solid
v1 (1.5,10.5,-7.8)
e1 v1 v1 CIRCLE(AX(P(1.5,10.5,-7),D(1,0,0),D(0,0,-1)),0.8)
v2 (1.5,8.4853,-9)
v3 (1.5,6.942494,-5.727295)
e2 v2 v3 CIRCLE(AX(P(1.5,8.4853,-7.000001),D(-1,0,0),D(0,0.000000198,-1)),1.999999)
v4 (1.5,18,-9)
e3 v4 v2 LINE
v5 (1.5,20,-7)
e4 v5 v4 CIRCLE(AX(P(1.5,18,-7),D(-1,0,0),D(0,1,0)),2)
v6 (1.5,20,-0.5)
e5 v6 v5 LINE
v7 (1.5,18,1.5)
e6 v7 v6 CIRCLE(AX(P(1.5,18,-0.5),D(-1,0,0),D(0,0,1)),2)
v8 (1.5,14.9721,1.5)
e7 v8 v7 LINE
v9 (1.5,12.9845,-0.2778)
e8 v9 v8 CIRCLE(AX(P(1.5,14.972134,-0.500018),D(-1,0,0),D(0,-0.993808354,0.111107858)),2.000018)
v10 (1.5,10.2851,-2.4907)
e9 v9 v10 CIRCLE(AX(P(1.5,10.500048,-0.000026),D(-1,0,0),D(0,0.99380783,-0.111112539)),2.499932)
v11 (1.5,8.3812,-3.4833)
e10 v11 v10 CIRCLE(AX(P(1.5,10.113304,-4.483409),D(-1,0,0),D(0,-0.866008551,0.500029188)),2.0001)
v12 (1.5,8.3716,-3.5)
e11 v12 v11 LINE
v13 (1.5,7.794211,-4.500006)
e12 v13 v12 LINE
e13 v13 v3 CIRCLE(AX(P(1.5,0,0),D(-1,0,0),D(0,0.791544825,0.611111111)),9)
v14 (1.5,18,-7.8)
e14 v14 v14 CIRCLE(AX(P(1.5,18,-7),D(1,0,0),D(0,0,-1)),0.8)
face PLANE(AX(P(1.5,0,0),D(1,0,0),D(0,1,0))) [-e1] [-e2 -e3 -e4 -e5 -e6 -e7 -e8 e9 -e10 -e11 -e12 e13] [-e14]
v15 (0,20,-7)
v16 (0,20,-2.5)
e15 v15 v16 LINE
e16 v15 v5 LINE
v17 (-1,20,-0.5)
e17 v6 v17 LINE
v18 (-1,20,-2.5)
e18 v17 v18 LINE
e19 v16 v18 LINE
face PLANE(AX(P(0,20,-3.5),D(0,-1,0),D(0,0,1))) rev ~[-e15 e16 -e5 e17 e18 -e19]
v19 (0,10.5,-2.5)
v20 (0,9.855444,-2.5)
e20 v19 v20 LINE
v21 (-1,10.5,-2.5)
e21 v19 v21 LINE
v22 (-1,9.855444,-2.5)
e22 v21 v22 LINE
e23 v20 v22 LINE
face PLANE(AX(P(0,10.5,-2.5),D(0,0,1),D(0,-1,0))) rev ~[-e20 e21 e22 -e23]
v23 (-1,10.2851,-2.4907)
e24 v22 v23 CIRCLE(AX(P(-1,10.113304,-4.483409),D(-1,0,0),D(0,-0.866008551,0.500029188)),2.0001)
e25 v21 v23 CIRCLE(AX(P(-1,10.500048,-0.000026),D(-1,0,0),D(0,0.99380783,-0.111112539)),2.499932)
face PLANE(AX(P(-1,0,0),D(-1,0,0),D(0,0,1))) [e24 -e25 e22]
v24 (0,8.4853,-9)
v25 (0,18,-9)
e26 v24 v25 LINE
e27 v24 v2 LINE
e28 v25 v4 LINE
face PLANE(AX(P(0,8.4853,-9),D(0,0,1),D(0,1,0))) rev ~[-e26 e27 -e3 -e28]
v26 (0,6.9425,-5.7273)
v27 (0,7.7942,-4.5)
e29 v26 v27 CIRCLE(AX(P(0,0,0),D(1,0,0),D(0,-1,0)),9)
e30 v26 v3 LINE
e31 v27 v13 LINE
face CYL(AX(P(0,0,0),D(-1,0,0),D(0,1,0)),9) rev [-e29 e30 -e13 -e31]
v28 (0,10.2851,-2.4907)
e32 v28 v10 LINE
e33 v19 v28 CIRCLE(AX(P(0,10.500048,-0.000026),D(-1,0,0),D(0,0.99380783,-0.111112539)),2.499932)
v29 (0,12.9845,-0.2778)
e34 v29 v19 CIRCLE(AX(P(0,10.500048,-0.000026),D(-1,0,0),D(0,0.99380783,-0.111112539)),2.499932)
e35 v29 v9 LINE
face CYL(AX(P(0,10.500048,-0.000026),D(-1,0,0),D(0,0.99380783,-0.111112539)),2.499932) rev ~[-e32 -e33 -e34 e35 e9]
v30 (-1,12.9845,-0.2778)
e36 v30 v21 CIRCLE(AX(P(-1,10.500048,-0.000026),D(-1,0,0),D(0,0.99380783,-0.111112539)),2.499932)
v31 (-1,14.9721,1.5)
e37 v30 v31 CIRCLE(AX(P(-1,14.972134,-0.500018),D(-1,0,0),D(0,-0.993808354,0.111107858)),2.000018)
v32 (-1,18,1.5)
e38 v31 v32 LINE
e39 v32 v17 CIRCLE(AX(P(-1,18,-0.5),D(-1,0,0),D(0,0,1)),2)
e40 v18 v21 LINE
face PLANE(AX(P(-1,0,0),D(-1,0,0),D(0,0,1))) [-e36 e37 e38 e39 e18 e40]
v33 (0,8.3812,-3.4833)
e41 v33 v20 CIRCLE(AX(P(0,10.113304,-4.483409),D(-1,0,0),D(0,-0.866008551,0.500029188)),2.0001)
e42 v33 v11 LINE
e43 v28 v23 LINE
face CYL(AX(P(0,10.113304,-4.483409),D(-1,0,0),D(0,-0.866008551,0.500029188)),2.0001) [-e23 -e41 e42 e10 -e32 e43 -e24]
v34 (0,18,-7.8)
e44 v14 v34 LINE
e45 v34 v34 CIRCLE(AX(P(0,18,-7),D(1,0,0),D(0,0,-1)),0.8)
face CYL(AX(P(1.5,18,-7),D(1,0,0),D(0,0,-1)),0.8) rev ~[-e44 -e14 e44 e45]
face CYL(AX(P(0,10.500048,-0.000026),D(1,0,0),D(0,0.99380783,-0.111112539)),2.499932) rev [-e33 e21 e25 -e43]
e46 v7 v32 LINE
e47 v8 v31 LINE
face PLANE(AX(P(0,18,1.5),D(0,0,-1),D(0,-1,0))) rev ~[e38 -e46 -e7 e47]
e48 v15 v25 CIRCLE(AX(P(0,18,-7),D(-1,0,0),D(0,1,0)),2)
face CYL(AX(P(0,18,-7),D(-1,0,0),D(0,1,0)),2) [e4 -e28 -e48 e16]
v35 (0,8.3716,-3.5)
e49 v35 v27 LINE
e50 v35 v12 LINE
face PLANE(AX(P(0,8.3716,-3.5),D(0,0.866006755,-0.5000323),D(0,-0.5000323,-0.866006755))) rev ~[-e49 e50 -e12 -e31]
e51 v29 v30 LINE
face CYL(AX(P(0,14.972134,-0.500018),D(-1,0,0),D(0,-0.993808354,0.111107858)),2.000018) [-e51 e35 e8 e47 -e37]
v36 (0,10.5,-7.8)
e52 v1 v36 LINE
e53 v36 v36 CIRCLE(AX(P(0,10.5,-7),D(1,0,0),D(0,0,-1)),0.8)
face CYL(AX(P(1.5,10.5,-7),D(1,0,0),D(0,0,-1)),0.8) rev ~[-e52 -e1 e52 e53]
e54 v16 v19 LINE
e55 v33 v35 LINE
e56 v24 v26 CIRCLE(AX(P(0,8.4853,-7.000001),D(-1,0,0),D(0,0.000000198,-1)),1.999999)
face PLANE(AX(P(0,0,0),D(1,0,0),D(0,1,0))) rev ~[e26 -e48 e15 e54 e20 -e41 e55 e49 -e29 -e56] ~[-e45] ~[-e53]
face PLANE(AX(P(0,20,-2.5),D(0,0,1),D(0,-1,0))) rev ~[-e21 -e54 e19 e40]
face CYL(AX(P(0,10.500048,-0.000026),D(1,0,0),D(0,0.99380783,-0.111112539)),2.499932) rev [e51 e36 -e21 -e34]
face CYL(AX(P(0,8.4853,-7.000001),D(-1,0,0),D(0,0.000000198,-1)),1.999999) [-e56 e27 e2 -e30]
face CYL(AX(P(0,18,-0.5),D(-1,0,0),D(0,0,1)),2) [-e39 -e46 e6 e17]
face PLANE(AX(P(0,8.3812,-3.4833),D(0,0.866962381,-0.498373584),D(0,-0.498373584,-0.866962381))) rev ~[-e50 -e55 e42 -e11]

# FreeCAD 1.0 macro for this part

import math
import FreeCAD as App
import Part
import Sketcher
from FreeCAD import Vector
Q = App.Units.Quantity

doc = App.newDocument("Part")
body = doc.addObject("PartDesign::Body", "Body")
body.AllowCompound = True

sketch1 = body.newObject("Sketcher::SketchObject", "Sketch")
sketch1.AttachmentSupport = (doc.getObject("YZ_Plane"), [""])
sketch1.MapMode = "FlatFace"
sketch1.addGeometry([
    Part.LineSegment(Vector(50, -13.5, 0), Vector(50, 5.5, 0)),
    Part.LineSegment(Vector(50, 5.5, 0), Vector(7.1, 5.5, 0)),
    Part.ArcOfCircle(Part.Circle(Vector(0, 0, 0), Vector(0, 0, 1), 9), math.radians(180), math.radians(398)),
    Part.LineSegment(Vector(-9, 0, 0), Vector(-9, -13.5, 0)),
    Part.LineSegment(Vector(-9, -13.5, 0), Vector(50, -13.5, 0)),
    Part.LineSegment(Vector(-9, 5.5, 0), Vector(-9, 0, 0)),
    Part.ArcOfCircle(Part.Circle(Vector(0, 0, 0), Vector(0, 0, 1), 9), math.radians(142), math.radians(180)),
    Part.LineSegment(Vector(-7.1, 5.5, 0), Vector(-9, 5.5, 0)),
], False)
sketch1.addConstraint([
    Sketcher.Constraint("Coincident", 0, 2, 1, 1),
    Sketcher.Constraint("Coincident", 1, 2, 2, 2),
    Sketcher.Constraint("Tangent", 2, 1, 3, 1),
    Sketcher.Constraint("Coincident", 3, 2, 4, 1),
    Sketcher.Constraint("Coincident", 4, 2, 0, 1),
    Sketcher.Constraint("Tangent", 5, 2, 6, 2),
    Sketcher.Constraint("Coincident", 6, 1, 7, 1),
    Sketcher.Constraint("Coincident", 7, 2, 5, 1),
    Sketcher.Constraint("Vertical", 0),
    Sketcher.Constraint("Horizontal", 1),
    Sketcher.Constraint("Vertical", 3),
    Sketcher.Constraint("Horizontal", 4),
    Sketcher.Constraint("Vertical", 5),
    Sketcher.Constraint("Horizontal", 7),
    Sketcher.Constraint("Coincident", 2, 3, -1, 1),
    Sketcher.Constraint("Coincident", 6, 3, -1, 1),
    Sketcher.Constraint("Equal", 2, 6),
    Sketcher.Constraint("Horizontal", 1, 2, 6, 1),
    Sketcher.Constraint("Radius", 2, Q("9 mm")),
    Sketcher.Constraint("DistanceY", 0, 1, 0, 2, Q("19 mm")),
    Sketcher.Constraint("DistanceX", 4, 1, 4, 2, Q("59 mm")),
    Sketcher.Constraint("DistanceY", 3, 2, 3, 1, Q("13.5 mm")),
])
pad1 = body.newObject("PartDesign::Pad", "Pad")
pad1.Profile = sketch1
pad1.Length = 1.5

sketch2 = body.newObject("Sketcher::SketchObject", "Sketch001")
sketch2.AttachmentSupport = (doc.getObject("YZ_Plane"), [""])
sketch2.MapMode = "FlatFace"
sketch2.addGeometry([
    Part.ArcOfCircle(Part.Circle(Vector(14.972, -0.5, 0), Vector(0, 0, 1), 2), math.radians(90), math.radians(174)),
    Part.ArcOfCircle(Part.Circle(Vector(10.5, 0, 0), Vector(0, 0, 1), 2.5), math.radians(-95), math.radians(-6)),
    Part.ArcOfCircle(Part.Circle(Vector(10.113, -4.483, 0), Vector(0, 0, 1), 2), math.radians(85), math.radians(150)),
    Part.LineSegment(Vector(8.381, -3.483, 0), Vector(8.372, -3.5, 0)),
    Part.LineSegment(Vector(8.372, -3.5, 0), Vector(7.794, -4.5, 0)),
    Part.ArcOfCircle(Part.Circle(Vector(0, 0, 0), Vector(0, 0, 1), 9), math.radians(-30), math.radians(38)),
    Part.LineSegment(Vector(7.124, 5.5, 0), Vector(50, 5.5, 0)),
    Part.LineSegment(Vector(50, 5.5, 0), Vector(50, -13.5, 0)),
    Part.LineSegment(Vector(50, -13.5, 0), Vector(-9, -13.5, 0)),
    Part.LineSegment(Vector(-9, -13.5, 0), Vector(-9, 0, 0)),
    Part.ArcOfCircle(Part.Circle(Vector(0, 0, 0), Vector(0, 0, 1), 9), math.radians(180), math.radians(320)),
    Part.ArcOfCircle(Part.Circle(Vector(8.485, -7, 0), Vector(0, 0, 1), 2), math.radians(140), math.radians(270)),
    Part.LineSegment(Vector(8.485, -9, 0), Vector(18, -9, 0)),
    Part.ArcOfCircle(Part.Circle(Vector(18, -7, 0), Vector(0, 0, 1), 2), math.radians(-90), math.radians(0)),
    Part.LineSegment(Vector(20, -7, 0), Vector(20, -0.5, 0)),
    Part.ArcOfCircle(Part.Circle(Vector(18, -0.5, 0), Vector(0, 0, 1), 2), math.radians(0), math.radians(90)),
    Part.LineSegment(Vector(18, 1.5, 0), Vector(14.972, 1.5, 0)),
    Part.ArcOfCircle(Part.Circle(Vector(0, 0, 0), Vector(0, 0, 1), 9), math.radians(142), math.radians(180)),
    Part.LineSegment(Vector(-9, 0, 0), Vector(-9, 5.5, 0)),
    Part.LineSegment(Vector(-9, 5.5, 0), Vector(-7.124, 5.5, 0)),
], False)
sketch2.addConstraint([
    Sketcher.Constraint("Tangent", 0, 2, 1, 2),
    Sketcher.Constraint("Tangent", 1, 1, 2, 1),
    Sketcher.Constraint("Coincident", 2, 2, 3, 1),
    Sketcher.Constraint("Coincident", 3, 2, 4, 1),
    Sketcher.Constraint("Tangent", 4, 2, 5, 1),
    Sketcher.Constraint("Coincident", 5, 2, 6, 1),
    Sketcher.Constraint("Coincident", 6, 2, 7, 1),
    Sketcher.Constraint("Coincident", 7, 2, 8, 1),
    Sketcher.Constraint("Coincident", 8, 2, 9, 1),
    Sketcher.Constraint("Tangent", 9, 2, 10, 1),
    Sketcher.Constraint("Tangent", 10, 2, 11, 1),
    Sketcher.Constraint("Tangent", 11, 2, 12, 1),
    Sketcher.Constraint("Tangent", 12, 2, 13, 1),
    Sketcher.Constraint("Tangent", 13, 2, 14, 1),
    Sketcher.Constraint("Tangent", 14, 2, 15, 1),
    Sketcher.Constraint("Tangent", 15, 2, 16, 1),
    Sketcher.Constraint("Tangent", 16, 2, 0, 1),
    Sketcher.Constraint("Tangent", 17, 2, 18, 1),
    Sketcher.Constraint("Coincident", 18, 2, 19, 1),
    Sketcher.Constraint("Coincident", 19, 2, 17, 1),
    Sketcher.Constraint("Horizontal", 6),
    Sketcher.Constraint("Vertical", 7),
    Sketcher.Constraint("Horizontal", 8),
    Sketcher.Constraint("Vertical", 9),
    Sketcher.Constraint("Horizontal", 12),
    Sketcher.Constraint("Vertical", 14),
    Sketcher.Constraint("Horizontal", 16),
    Sketcher.Constraint("Vertical", 18),
    Sketcher.Constraint("Horizontal", 19),
    Sketcher.Constraint("Coincident", 5, 3, -1, 1),
    Sketcher.Constraint("Coincident", 10, 3, -1, 1),
    Sketcher.Constraint("Coincident", 17, 3, -1, 1),
    Sketcher.Constraint("Equal", 0, 2),
    Sketcher.Constraint("Equal", 5, 10),
    Sketcher.Constraint("Equal", 2, 11),
    Sketcher.Constraint("Equal", 11, 13),
    Sketcher.Constraint("Equal", 13, 15),
    Sketcher.Constraint("Equal", 10, 17),
    Sketcher.Constraint("PointOnObject", 1, 3, -1),
    Sketcher.Constraint("Horizontal", 6, 2, 18, 2),
    Sketcher.Constraint("Radius", 0, Q("2 mm")),
    Sketcher.Constraint("Radius", 5, Q("9 mm")),
    Sketcher.Constraint("Radius", 1, Q("2.5 mm")),
    Sketcher.Constraint("DistanceX", 8, 2, 8, 1, Q("59 mm")),
    Sketcher.Constraint("DistanceY", 7, 2, 7, 1, Q("19 mm")),
    Sketcher.Constraint("DistanceY", 9, 1, 9, 2, Q("13.5 mm")),
    Sketcher.Constraint("DistanceY", 14, 1, 14, 2, Q("6.5 mm")),
    Sketcher.Constraint("DistanceY", 11, 3, -1, 1, Q("7 mm")),
    Sketcher.Constraint("DistanceX", -1, 1, 13, 3, Q("18 mm")),
    Sketcher.Constraint("DistanceY", 2, 3, 2, 2, Q("1 mm")),
    Sketcher.Constraint("DistanceY", 4, 2, 3, 2, Q("1 mm")),
    Sketcher.Constraint("DistanceY", 8, 2, 4, 2, Q("9 mm")),
    Sketcher.Constraint("DistanceX", -1, 1, 1, 3, Q("10.5 mm")),
    Sketcher.Constraint("DistanceX", -1, 1, 1, 1, Q("10.285 mm")),
])
pocket1 = body.newObject("PartDesign::Pocket", "Pocket")
pocket1.Profile = sketch2
pocket1.Type = "ThroughAll"
pocket1.Reversed = True

sketch3 = body.newObject("Sketcher::SketchObject", "Sketch002")
sketch3.AttachmentSupport = (doc.getObject("YZ_Plane"), [""])
sketch3.MapMode = "FlatFace"
sketch3.addGeometry([
    Part.LineSegment(Vector(20, -0.5, 0), Vector(20, -2.5, 0)),
    Part.LineSegment(Vector(20, -2.5, 0), Vector(10.5, -2.5, 0)),
    Part.ArcOfCircle(Part.Circle(Vector(10.5, 0, 0), Vector(0, 0, 1), 2.5), math.radians(-90), math.radians(-6)),
    Part.ArcOfCircle(Part.Circle(Vector(14.97, -0.5, 0), Vector(0, 0, 1), 2), math.radians(90), math.radians(174)),
    Part.LineSegment(Vector(14.97, 1.5, 0), Vector(18, 1.5, 0)),
    Part.ArcOfCircle(Part.Circle(Vector(18, -0.5, 0), Vector(0, 0, 1), 2), math.radians(0), math.radians(90)),
    Part.ArcOfCircle(Part.Circle(Vector(10.5, 0, 0), Vector(0, 0, 1), 2.5), math.radians(-94.93), math.radians(-90)),
    Part.LineSegment(Vector(10.5, -2.5, 0), Vector(9.86, -2.5, 0)),
    Part.ArcOfCircle(Part.Circle(Vector(10.11, -4.48, 0), Vector(0, 0, 1), 2), math.radians(85.07), math.radians(97.4)),
], False)
sketch3.addConstraint([
    Sketcher.Constraint("Coincident", 0, 2, 1, 1),
    Sketcher.Constraint("Tangent", 1, 2, 2, 1),
    Sketcher.Constraint("Tangent", 2, 2, 3, 2),
    Sketcher.Constraint("Tangent", 3, 1, 4, 1),
    Sketcher.Constraint("Tangent", 4, 2, 5, 2),
    Sketcher.Constraint("Tangent", 5, 1, 0, 1),
    Sketcher.Constraint("Tangent", 6, 2, 7, 1),
    Sketcher.Constraint("Coincident", 7, 2, 8, 2),
    Sketcher.Constraint("Tangent", 8, 1, 6, 1),
    Sketcher.Constraint("Vertical", 0),
    Sketcher.Constraint("Horizontal", 1),
    Sketcher.Constraint("Horizontal", 4),
    Sketcher.Constraint("Horizontal", 7),
    Sketcher.Constraint("Coincident", 6, 3, 2, 3),
    Sketcher.Constraint("Equal", 3, 5),
    Sketcher.Constraint("Equal", 2, 6),
    Sketcher.Constraint("Equal", 5, 8),
    Sketcher.Constraint("PointOnObject", 2, 3, -1),
    Sketcher.Constraint("Radius", 3, Q("2 mm")),
    Sketcher.Constraint("Radius", 2, Q("2.5 mm")),
    Sketcher.Constraint("DistanceY", 0, 2, 0, 1, Q("2 mm")),
    Sketcher.Constraint("DistanceX", 1, 2, 1, 1, Q("9.5 mm")),
    Sketcher.Constraint("DistanceX", -1, 1, 5, 3, Q("18 mm")),
    Sketcher.Constraint("DistanceX", 7, 2, 7, 1, Q("0.6446 mm")),
])
pad2 = body.newObject("PartDesign::Pad", "Pad001")
pad2.Profile = sketch3
pad2.Length = 1
pad2.Reversed = True

sketch4 = body.newObject("Sketcher::SketchObject", "Sketch003")
sketch4.AttachmentSupport = (doc.getObject("YZ_Plane"), [""])
sketch4.MapMode = "FlatFace"
sketch4.AttachmentOffset = App.Placement(Vector(0, 0, 1.5), App.Rotation())
sketch4.addGeometry([
    Part.Circle(Vector(18, -7, 0), Vector(0, 0, 1), 0.8),
    Part.Circle(Vector(10.5, -7, 0), Vector(0, 0, 1), 0.8),
], False)
sketch4.addConstraint([
    Sketcher.Constraint("Equal", 0, 1),
    Sketcher.Constraint("Horizontal", 0, 3, 1, 3),
    Sketcher.Constraint("Diameter", 0, Q("1.6 mm")),
    Sketcher.Constraint("DistanceX", -1, 1, 0, 3, Q("18 mm")),
    Sketcher.Constraint("DistanceY", 0, 3, -1, 1, Q("7 mm")),
    Sketcher.Constraint("DistanceX", -1, 1, 1, 3, Q("10.5 mm")),
])
pocket2 = body.newObject("PartDesign::Pocket", "Pocket001")
pocket2.Profile = sketch4
pocket2.Type = "ThroughAll"

doc.recompute()
